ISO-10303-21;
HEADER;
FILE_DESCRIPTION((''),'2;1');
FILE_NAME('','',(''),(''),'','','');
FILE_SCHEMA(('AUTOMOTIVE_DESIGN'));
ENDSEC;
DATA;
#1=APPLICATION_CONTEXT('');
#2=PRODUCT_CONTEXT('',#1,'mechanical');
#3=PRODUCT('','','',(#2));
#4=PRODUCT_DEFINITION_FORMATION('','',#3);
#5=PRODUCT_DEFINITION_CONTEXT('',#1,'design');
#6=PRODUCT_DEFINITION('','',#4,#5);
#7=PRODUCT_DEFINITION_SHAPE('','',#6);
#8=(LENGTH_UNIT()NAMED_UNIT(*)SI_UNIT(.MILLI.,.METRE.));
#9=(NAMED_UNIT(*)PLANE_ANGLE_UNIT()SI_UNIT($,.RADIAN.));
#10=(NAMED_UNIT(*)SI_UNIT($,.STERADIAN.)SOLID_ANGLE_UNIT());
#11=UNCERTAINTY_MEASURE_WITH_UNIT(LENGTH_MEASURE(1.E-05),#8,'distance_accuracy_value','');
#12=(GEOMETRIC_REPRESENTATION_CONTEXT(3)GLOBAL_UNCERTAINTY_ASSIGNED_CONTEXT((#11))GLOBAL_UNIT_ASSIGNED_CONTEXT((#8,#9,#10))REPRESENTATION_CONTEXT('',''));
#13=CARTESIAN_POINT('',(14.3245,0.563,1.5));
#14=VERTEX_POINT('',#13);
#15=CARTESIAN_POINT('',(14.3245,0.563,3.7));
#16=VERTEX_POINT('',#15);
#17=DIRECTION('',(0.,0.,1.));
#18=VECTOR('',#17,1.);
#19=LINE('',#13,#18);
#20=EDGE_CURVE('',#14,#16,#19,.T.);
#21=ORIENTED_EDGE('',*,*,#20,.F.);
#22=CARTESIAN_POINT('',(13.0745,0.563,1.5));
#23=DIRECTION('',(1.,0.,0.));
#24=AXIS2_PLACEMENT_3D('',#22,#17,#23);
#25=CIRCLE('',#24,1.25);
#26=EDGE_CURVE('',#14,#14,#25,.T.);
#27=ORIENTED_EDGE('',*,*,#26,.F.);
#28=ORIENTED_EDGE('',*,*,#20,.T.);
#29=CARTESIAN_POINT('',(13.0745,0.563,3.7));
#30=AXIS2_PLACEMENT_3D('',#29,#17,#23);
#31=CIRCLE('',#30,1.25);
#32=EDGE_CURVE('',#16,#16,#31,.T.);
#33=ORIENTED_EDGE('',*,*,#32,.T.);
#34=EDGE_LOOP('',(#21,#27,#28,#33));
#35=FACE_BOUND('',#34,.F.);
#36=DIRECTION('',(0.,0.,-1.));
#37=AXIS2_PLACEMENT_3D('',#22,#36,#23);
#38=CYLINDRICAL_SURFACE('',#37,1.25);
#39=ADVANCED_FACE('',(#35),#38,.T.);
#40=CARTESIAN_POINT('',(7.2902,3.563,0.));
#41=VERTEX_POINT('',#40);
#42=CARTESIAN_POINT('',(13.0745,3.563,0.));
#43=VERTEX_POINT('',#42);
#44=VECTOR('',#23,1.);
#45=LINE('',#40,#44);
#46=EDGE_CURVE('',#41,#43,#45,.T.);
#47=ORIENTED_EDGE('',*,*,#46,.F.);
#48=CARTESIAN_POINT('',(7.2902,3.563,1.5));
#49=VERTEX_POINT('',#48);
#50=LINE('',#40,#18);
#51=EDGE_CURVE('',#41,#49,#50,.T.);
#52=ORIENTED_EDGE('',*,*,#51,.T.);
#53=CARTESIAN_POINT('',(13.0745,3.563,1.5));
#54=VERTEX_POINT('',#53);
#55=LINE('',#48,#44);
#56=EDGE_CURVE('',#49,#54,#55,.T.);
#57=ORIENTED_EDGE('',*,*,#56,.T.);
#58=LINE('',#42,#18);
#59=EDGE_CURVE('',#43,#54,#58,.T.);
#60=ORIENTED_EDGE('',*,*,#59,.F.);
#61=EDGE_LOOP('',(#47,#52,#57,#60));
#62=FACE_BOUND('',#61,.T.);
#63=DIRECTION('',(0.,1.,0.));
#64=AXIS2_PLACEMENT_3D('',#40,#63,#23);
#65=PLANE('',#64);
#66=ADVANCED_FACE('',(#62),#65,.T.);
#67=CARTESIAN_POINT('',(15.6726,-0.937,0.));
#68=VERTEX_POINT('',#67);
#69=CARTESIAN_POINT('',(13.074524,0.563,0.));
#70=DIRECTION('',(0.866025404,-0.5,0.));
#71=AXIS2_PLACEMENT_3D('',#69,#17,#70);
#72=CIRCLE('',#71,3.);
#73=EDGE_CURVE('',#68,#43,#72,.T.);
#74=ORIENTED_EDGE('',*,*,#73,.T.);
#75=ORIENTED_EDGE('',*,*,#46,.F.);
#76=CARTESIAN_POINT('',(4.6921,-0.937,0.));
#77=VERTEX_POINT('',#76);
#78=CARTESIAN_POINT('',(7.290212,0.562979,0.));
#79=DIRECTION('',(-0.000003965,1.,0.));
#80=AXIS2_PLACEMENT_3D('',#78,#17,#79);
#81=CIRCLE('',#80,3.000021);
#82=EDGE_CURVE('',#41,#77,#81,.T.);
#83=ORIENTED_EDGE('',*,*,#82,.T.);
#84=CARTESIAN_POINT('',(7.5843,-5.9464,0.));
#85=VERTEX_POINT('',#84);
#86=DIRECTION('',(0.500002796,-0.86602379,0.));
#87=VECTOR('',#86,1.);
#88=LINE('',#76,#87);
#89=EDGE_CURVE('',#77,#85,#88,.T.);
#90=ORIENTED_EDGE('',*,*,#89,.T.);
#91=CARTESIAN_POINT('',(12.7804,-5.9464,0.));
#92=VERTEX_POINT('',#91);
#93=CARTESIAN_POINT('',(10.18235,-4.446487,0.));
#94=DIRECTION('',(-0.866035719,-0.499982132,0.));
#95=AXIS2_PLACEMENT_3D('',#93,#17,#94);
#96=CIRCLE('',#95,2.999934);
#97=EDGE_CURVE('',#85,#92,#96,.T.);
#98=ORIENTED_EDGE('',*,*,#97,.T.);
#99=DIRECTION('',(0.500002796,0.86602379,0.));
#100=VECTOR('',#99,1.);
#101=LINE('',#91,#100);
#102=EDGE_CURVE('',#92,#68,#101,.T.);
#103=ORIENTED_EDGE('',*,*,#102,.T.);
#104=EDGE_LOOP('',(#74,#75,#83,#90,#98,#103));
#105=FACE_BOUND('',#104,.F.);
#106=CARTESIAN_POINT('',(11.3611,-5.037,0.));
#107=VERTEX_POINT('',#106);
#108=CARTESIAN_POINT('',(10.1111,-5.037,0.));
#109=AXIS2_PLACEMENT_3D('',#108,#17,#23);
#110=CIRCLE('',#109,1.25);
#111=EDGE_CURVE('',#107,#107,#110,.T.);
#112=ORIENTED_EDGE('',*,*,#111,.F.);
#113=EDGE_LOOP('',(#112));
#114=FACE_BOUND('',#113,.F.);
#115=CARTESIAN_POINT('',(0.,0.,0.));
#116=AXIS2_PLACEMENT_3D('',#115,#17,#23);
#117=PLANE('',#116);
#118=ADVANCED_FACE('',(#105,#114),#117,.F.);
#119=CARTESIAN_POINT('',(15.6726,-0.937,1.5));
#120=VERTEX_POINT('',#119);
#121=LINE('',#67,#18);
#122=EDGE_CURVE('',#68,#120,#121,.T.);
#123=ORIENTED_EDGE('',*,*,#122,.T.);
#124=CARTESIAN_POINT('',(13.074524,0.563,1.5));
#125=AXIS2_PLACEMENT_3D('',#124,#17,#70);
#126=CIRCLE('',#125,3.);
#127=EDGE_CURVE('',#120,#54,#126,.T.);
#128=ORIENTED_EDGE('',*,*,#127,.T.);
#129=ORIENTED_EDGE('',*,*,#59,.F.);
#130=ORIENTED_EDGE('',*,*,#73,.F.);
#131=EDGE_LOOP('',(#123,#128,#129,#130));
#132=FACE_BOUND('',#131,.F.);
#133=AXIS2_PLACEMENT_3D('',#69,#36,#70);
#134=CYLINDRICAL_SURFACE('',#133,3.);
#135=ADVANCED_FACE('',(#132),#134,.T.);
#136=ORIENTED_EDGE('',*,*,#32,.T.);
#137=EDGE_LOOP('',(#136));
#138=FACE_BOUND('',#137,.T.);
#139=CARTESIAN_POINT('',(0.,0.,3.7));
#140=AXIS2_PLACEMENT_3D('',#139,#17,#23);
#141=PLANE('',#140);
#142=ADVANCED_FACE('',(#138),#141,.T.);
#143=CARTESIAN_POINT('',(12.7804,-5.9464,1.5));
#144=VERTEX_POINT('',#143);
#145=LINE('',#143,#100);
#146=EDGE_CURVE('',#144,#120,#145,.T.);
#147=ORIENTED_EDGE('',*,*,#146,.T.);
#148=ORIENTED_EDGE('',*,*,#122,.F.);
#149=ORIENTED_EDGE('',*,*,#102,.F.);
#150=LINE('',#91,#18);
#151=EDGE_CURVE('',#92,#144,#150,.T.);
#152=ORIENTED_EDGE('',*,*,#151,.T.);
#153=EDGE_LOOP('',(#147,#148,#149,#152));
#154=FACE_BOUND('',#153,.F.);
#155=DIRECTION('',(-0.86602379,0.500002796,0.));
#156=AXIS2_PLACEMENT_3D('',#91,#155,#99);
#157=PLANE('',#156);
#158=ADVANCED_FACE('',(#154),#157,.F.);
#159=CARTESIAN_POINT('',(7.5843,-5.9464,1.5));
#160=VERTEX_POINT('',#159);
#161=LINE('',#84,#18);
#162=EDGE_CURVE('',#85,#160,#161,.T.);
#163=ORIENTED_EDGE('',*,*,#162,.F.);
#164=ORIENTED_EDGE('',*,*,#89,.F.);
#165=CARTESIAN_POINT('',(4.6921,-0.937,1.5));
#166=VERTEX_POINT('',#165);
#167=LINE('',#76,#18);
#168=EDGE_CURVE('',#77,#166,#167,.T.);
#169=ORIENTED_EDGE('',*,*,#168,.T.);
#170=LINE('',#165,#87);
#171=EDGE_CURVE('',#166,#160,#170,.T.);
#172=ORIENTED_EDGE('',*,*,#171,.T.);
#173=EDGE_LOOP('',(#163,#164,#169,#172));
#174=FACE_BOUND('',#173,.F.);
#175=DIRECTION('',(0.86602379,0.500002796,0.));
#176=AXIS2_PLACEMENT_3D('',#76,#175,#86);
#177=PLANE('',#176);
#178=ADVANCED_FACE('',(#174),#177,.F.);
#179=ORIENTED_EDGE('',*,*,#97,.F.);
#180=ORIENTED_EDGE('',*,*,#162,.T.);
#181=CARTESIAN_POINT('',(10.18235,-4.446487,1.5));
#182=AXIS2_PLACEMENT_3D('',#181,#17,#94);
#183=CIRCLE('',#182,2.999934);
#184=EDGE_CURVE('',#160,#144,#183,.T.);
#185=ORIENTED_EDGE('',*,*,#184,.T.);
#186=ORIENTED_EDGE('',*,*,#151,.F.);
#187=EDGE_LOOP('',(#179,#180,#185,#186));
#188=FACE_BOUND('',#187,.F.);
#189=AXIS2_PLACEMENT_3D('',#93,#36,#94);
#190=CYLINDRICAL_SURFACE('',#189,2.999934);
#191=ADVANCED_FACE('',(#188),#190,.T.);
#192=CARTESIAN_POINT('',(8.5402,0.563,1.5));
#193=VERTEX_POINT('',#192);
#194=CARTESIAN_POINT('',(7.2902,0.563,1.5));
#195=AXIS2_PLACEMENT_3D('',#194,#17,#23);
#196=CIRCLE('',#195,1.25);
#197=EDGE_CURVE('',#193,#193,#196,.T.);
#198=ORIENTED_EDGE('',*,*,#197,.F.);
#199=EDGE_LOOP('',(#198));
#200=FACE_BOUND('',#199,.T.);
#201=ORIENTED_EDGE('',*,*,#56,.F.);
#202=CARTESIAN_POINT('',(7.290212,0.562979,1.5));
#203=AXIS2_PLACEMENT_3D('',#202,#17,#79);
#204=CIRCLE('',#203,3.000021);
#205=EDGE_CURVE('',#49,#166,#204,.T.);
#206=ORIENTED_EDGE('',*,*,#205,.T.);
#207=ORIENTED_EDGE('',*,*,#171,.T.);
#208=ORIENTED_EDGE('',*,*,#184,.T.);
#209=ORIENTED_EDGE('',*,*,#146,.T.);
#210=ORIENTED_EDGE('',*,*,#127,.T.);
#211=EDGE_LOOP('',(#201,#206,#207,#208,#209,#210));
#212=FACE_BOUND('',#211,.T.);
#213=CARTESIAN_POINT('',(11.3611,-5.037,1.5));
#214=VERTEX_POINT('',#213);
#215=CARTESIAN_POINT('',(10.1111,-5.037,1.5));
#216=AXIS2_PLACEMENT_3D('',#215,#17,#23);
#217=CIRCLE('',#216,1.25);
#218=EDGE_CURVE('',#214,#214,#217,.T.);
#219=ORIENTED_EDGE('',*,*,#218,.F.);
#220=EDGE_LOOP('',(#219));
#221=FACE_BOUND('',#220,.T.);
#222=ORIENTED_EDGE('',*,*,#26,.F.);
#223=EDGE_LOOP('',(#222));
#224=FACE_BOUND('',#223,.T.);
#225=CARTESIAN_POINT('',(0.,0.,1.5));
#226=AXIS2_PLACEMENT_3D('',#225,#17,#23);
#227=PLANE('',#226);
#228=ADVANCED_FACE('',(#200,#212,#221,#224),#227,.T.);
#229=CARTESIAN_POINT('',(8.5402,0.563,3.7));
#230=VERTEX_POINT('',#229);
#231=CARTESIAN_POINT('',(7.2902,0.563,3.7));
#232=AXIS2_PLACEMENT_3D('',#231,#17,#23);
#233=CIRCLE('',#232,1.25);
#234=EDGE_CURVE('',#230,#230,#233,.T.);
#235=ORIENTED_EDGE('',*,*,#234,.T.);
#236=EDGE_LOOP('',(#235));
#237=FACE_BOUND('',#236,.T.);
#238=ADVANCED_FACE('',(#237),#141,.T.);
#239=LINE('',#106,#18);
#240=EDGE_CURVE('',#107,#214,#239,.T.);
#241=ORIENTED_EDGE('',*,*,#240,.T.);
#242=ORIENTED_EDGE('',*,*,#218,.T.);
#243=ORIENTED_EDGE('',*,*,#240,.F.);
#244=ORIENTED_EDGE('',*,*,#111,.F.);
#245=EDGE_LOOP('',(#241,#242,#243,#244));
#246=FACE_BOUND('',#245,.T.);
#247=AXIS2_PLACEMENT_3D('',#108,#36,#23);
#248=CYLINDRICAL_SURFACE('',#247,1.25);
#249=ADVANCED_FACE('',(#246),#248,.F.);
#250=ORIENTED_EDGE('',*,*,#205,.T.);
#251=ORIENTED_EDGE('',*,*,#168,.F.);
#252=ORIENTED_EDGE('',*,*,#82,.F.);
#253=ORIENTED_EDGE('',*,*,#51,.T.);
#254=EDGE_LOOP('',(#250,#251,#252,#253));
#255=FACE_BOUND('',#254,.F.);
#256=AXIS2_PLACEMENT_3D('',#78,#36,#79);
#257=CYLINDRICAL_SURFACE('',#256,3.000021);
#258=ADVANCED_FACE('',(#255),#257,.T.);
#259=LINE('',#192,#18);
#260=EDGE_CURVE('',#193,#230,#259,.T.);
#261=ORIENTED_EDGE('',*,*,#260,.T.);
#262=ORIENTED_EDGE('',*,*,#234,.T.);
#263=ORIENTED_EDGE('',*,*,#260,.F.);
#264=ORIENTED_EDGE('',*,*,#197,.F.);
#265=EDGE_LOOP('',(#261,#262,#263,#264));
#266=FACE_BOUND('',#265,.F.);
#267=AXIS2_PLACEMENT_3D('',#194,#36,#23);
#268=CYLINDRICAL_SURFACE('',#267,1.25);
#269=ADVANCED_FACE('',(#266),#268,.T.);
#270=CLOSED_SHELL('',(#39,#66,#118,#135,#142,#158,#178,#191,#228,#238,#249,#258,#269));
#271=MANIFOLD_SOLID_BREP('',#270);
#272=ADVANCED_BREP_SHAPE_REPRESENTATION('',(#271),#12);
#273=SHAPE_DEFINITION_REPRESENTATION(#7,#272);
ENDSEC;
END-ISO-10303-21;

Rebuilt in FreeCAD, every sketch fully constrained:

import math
import FreeCAD as App
import Part
import Sketcher
Q = App.Units.Quantity

doc = App.newDocument("Part")
body = doc.addObject("PartDesign::Body", "Body")

sketch1 = body.newObject("Sketcher::SketchObject", "Sketch")
sketch1.AttachmentSupport = (doc.getObject("XY_Plane"), [""])
sketch1.MapMode = "FlatFace"
sketch1.addGeometry([
    Part.LineSegment(App.Vector(13.1, 3.6, 0), App.Vector(7.3, 3.6, 0)),
    Part.ArcOfCircle(Part.Circle(App.Vector(7.3, 0.6, 0), App.Vector(0, 0, 1), 3), math.radians(90), math.radians(210)),
    Part.LineSegment(App.Vector(4.7, -0.9, 0), App.Vector(7.6, -5.9, 0)),
    Part.ArcOfCircle(Part.Circle(App.Vector(10.2, -4.4, 0), App.Vector(0, 0, 1), 3), math.radians(-150), math.radians(-30)),
    Part.LineSegment(App.Vector(12.8, -5.9, 0), App.Vector(15.7, -0.9, 0)),
    Part.ArcOfCircle(Part.Circle(App.Vector(13.1, 0.6, 0), App.Vector(0, 0, 1), 3), math.radians(-30), math.radians(90)),
    Part.Circle(App.Vector(10.1, -5, 0), App.Vector(0, 0, 1), 1.2),
], False)
sketch1.addConstraint([
    Sketcher.Constraint("Tangent", 0, 2, 1, 1),
    Sketcher.Constraint("Tangent", 1, 2, 2, 1),
    Sketcher.Constraint("Tangent", 2, 2, 3, 1),
    Sketcher.Constraint("Tangent", 3, 2, 4, 1),
    Sketcher.Constraint("Tangent", 4, 2, 5, 1),
    Sketcher.Constraint("Tangent", 5, 2, 0, 1),
    Sketcher.Constraint("Horizontal", 0),
    Sketcher.Constraint("Equal", 1, 3),
    Sketcher.Constraint("Equal", 3, 5),
    Sketcher.Constraint("Horizontal", 2, 2, 3, 2),
    Sketcher.Constraint("Radius", 1, Q("3 mm")),
    Sketcher.Constraint("Diameter", 6, Q("2.5 mm")),
    Sketcher.Constraint("Angle", 2, Q("-59.9998 deg")),
    Sketcher.Constraint("DistanceY", 6, 3, 1, 3, Q("5.6 mm")),
    Sketcher.Constraint("DistanceX", 0, 2, 0, 1, Q("5.7843 mm")),
    Sketcher.Constraint("DistanceY", -1, 1, 1, 3, Q("0.563 mm")),
    Sketcher.Constraint("DistanceX", -1, 1, 6, 3, Q("10.111 mm")),
    Sketcher.Constraint("DistanceX", -1, 1, 1, 2, Q("4.692 mm")),
])
pad1 = body.newObject("PartDesign::Pad", "Pad")
pad1.Profile = sketch1
pad1.Length = 1.5

sketch2 = body.newObject("Sketcher::SketchObject", "Sketch001")
sketch2.AttachmentSupport = (doc.getObject("XY_Plane"), [""])
sketch2.MapMode = "FlatFace"
sketch2.AttachmentOffset = App.Placement(App.Vector(0, 0, 1.5), App.Rotation())
sketch2.addGeometry([
    Part.Circle(App.Vector(7.3, 0.6, 0), App.Vector(0, 0, 1), 1.2),
    Part.Circle(App.Vector(13.1, 0.6, 0), App.Vector(0, 0, 1), 1.2),
], False)
sketch2.addConstraint([
    Sketcher.Constraint("Equal", 0, 1),
    Sketcher.Constraint("Horizontal", 0, 3, 1, 3),
    Sketcher.Constraint("Diameter", 0, Q("2.5 mm")),
    Sketcher.Constraint("DistanceY", -1, 1, 0, 3, Q("0.563 mm")),
    Sketcher.Constraint("DistanceX", -1, 1, 0, 3, Q("7.2902 mm")),
    Sketcher.Constraint("DistanceX", -1, 1, 1, 3, Q("13.0745 mm")),
])
pad2 = body.newObject("PartDesign::Pad", "Pad001")
pad2.Profile = sketch2
pad2.Length = 2.2

doc.recompute()
